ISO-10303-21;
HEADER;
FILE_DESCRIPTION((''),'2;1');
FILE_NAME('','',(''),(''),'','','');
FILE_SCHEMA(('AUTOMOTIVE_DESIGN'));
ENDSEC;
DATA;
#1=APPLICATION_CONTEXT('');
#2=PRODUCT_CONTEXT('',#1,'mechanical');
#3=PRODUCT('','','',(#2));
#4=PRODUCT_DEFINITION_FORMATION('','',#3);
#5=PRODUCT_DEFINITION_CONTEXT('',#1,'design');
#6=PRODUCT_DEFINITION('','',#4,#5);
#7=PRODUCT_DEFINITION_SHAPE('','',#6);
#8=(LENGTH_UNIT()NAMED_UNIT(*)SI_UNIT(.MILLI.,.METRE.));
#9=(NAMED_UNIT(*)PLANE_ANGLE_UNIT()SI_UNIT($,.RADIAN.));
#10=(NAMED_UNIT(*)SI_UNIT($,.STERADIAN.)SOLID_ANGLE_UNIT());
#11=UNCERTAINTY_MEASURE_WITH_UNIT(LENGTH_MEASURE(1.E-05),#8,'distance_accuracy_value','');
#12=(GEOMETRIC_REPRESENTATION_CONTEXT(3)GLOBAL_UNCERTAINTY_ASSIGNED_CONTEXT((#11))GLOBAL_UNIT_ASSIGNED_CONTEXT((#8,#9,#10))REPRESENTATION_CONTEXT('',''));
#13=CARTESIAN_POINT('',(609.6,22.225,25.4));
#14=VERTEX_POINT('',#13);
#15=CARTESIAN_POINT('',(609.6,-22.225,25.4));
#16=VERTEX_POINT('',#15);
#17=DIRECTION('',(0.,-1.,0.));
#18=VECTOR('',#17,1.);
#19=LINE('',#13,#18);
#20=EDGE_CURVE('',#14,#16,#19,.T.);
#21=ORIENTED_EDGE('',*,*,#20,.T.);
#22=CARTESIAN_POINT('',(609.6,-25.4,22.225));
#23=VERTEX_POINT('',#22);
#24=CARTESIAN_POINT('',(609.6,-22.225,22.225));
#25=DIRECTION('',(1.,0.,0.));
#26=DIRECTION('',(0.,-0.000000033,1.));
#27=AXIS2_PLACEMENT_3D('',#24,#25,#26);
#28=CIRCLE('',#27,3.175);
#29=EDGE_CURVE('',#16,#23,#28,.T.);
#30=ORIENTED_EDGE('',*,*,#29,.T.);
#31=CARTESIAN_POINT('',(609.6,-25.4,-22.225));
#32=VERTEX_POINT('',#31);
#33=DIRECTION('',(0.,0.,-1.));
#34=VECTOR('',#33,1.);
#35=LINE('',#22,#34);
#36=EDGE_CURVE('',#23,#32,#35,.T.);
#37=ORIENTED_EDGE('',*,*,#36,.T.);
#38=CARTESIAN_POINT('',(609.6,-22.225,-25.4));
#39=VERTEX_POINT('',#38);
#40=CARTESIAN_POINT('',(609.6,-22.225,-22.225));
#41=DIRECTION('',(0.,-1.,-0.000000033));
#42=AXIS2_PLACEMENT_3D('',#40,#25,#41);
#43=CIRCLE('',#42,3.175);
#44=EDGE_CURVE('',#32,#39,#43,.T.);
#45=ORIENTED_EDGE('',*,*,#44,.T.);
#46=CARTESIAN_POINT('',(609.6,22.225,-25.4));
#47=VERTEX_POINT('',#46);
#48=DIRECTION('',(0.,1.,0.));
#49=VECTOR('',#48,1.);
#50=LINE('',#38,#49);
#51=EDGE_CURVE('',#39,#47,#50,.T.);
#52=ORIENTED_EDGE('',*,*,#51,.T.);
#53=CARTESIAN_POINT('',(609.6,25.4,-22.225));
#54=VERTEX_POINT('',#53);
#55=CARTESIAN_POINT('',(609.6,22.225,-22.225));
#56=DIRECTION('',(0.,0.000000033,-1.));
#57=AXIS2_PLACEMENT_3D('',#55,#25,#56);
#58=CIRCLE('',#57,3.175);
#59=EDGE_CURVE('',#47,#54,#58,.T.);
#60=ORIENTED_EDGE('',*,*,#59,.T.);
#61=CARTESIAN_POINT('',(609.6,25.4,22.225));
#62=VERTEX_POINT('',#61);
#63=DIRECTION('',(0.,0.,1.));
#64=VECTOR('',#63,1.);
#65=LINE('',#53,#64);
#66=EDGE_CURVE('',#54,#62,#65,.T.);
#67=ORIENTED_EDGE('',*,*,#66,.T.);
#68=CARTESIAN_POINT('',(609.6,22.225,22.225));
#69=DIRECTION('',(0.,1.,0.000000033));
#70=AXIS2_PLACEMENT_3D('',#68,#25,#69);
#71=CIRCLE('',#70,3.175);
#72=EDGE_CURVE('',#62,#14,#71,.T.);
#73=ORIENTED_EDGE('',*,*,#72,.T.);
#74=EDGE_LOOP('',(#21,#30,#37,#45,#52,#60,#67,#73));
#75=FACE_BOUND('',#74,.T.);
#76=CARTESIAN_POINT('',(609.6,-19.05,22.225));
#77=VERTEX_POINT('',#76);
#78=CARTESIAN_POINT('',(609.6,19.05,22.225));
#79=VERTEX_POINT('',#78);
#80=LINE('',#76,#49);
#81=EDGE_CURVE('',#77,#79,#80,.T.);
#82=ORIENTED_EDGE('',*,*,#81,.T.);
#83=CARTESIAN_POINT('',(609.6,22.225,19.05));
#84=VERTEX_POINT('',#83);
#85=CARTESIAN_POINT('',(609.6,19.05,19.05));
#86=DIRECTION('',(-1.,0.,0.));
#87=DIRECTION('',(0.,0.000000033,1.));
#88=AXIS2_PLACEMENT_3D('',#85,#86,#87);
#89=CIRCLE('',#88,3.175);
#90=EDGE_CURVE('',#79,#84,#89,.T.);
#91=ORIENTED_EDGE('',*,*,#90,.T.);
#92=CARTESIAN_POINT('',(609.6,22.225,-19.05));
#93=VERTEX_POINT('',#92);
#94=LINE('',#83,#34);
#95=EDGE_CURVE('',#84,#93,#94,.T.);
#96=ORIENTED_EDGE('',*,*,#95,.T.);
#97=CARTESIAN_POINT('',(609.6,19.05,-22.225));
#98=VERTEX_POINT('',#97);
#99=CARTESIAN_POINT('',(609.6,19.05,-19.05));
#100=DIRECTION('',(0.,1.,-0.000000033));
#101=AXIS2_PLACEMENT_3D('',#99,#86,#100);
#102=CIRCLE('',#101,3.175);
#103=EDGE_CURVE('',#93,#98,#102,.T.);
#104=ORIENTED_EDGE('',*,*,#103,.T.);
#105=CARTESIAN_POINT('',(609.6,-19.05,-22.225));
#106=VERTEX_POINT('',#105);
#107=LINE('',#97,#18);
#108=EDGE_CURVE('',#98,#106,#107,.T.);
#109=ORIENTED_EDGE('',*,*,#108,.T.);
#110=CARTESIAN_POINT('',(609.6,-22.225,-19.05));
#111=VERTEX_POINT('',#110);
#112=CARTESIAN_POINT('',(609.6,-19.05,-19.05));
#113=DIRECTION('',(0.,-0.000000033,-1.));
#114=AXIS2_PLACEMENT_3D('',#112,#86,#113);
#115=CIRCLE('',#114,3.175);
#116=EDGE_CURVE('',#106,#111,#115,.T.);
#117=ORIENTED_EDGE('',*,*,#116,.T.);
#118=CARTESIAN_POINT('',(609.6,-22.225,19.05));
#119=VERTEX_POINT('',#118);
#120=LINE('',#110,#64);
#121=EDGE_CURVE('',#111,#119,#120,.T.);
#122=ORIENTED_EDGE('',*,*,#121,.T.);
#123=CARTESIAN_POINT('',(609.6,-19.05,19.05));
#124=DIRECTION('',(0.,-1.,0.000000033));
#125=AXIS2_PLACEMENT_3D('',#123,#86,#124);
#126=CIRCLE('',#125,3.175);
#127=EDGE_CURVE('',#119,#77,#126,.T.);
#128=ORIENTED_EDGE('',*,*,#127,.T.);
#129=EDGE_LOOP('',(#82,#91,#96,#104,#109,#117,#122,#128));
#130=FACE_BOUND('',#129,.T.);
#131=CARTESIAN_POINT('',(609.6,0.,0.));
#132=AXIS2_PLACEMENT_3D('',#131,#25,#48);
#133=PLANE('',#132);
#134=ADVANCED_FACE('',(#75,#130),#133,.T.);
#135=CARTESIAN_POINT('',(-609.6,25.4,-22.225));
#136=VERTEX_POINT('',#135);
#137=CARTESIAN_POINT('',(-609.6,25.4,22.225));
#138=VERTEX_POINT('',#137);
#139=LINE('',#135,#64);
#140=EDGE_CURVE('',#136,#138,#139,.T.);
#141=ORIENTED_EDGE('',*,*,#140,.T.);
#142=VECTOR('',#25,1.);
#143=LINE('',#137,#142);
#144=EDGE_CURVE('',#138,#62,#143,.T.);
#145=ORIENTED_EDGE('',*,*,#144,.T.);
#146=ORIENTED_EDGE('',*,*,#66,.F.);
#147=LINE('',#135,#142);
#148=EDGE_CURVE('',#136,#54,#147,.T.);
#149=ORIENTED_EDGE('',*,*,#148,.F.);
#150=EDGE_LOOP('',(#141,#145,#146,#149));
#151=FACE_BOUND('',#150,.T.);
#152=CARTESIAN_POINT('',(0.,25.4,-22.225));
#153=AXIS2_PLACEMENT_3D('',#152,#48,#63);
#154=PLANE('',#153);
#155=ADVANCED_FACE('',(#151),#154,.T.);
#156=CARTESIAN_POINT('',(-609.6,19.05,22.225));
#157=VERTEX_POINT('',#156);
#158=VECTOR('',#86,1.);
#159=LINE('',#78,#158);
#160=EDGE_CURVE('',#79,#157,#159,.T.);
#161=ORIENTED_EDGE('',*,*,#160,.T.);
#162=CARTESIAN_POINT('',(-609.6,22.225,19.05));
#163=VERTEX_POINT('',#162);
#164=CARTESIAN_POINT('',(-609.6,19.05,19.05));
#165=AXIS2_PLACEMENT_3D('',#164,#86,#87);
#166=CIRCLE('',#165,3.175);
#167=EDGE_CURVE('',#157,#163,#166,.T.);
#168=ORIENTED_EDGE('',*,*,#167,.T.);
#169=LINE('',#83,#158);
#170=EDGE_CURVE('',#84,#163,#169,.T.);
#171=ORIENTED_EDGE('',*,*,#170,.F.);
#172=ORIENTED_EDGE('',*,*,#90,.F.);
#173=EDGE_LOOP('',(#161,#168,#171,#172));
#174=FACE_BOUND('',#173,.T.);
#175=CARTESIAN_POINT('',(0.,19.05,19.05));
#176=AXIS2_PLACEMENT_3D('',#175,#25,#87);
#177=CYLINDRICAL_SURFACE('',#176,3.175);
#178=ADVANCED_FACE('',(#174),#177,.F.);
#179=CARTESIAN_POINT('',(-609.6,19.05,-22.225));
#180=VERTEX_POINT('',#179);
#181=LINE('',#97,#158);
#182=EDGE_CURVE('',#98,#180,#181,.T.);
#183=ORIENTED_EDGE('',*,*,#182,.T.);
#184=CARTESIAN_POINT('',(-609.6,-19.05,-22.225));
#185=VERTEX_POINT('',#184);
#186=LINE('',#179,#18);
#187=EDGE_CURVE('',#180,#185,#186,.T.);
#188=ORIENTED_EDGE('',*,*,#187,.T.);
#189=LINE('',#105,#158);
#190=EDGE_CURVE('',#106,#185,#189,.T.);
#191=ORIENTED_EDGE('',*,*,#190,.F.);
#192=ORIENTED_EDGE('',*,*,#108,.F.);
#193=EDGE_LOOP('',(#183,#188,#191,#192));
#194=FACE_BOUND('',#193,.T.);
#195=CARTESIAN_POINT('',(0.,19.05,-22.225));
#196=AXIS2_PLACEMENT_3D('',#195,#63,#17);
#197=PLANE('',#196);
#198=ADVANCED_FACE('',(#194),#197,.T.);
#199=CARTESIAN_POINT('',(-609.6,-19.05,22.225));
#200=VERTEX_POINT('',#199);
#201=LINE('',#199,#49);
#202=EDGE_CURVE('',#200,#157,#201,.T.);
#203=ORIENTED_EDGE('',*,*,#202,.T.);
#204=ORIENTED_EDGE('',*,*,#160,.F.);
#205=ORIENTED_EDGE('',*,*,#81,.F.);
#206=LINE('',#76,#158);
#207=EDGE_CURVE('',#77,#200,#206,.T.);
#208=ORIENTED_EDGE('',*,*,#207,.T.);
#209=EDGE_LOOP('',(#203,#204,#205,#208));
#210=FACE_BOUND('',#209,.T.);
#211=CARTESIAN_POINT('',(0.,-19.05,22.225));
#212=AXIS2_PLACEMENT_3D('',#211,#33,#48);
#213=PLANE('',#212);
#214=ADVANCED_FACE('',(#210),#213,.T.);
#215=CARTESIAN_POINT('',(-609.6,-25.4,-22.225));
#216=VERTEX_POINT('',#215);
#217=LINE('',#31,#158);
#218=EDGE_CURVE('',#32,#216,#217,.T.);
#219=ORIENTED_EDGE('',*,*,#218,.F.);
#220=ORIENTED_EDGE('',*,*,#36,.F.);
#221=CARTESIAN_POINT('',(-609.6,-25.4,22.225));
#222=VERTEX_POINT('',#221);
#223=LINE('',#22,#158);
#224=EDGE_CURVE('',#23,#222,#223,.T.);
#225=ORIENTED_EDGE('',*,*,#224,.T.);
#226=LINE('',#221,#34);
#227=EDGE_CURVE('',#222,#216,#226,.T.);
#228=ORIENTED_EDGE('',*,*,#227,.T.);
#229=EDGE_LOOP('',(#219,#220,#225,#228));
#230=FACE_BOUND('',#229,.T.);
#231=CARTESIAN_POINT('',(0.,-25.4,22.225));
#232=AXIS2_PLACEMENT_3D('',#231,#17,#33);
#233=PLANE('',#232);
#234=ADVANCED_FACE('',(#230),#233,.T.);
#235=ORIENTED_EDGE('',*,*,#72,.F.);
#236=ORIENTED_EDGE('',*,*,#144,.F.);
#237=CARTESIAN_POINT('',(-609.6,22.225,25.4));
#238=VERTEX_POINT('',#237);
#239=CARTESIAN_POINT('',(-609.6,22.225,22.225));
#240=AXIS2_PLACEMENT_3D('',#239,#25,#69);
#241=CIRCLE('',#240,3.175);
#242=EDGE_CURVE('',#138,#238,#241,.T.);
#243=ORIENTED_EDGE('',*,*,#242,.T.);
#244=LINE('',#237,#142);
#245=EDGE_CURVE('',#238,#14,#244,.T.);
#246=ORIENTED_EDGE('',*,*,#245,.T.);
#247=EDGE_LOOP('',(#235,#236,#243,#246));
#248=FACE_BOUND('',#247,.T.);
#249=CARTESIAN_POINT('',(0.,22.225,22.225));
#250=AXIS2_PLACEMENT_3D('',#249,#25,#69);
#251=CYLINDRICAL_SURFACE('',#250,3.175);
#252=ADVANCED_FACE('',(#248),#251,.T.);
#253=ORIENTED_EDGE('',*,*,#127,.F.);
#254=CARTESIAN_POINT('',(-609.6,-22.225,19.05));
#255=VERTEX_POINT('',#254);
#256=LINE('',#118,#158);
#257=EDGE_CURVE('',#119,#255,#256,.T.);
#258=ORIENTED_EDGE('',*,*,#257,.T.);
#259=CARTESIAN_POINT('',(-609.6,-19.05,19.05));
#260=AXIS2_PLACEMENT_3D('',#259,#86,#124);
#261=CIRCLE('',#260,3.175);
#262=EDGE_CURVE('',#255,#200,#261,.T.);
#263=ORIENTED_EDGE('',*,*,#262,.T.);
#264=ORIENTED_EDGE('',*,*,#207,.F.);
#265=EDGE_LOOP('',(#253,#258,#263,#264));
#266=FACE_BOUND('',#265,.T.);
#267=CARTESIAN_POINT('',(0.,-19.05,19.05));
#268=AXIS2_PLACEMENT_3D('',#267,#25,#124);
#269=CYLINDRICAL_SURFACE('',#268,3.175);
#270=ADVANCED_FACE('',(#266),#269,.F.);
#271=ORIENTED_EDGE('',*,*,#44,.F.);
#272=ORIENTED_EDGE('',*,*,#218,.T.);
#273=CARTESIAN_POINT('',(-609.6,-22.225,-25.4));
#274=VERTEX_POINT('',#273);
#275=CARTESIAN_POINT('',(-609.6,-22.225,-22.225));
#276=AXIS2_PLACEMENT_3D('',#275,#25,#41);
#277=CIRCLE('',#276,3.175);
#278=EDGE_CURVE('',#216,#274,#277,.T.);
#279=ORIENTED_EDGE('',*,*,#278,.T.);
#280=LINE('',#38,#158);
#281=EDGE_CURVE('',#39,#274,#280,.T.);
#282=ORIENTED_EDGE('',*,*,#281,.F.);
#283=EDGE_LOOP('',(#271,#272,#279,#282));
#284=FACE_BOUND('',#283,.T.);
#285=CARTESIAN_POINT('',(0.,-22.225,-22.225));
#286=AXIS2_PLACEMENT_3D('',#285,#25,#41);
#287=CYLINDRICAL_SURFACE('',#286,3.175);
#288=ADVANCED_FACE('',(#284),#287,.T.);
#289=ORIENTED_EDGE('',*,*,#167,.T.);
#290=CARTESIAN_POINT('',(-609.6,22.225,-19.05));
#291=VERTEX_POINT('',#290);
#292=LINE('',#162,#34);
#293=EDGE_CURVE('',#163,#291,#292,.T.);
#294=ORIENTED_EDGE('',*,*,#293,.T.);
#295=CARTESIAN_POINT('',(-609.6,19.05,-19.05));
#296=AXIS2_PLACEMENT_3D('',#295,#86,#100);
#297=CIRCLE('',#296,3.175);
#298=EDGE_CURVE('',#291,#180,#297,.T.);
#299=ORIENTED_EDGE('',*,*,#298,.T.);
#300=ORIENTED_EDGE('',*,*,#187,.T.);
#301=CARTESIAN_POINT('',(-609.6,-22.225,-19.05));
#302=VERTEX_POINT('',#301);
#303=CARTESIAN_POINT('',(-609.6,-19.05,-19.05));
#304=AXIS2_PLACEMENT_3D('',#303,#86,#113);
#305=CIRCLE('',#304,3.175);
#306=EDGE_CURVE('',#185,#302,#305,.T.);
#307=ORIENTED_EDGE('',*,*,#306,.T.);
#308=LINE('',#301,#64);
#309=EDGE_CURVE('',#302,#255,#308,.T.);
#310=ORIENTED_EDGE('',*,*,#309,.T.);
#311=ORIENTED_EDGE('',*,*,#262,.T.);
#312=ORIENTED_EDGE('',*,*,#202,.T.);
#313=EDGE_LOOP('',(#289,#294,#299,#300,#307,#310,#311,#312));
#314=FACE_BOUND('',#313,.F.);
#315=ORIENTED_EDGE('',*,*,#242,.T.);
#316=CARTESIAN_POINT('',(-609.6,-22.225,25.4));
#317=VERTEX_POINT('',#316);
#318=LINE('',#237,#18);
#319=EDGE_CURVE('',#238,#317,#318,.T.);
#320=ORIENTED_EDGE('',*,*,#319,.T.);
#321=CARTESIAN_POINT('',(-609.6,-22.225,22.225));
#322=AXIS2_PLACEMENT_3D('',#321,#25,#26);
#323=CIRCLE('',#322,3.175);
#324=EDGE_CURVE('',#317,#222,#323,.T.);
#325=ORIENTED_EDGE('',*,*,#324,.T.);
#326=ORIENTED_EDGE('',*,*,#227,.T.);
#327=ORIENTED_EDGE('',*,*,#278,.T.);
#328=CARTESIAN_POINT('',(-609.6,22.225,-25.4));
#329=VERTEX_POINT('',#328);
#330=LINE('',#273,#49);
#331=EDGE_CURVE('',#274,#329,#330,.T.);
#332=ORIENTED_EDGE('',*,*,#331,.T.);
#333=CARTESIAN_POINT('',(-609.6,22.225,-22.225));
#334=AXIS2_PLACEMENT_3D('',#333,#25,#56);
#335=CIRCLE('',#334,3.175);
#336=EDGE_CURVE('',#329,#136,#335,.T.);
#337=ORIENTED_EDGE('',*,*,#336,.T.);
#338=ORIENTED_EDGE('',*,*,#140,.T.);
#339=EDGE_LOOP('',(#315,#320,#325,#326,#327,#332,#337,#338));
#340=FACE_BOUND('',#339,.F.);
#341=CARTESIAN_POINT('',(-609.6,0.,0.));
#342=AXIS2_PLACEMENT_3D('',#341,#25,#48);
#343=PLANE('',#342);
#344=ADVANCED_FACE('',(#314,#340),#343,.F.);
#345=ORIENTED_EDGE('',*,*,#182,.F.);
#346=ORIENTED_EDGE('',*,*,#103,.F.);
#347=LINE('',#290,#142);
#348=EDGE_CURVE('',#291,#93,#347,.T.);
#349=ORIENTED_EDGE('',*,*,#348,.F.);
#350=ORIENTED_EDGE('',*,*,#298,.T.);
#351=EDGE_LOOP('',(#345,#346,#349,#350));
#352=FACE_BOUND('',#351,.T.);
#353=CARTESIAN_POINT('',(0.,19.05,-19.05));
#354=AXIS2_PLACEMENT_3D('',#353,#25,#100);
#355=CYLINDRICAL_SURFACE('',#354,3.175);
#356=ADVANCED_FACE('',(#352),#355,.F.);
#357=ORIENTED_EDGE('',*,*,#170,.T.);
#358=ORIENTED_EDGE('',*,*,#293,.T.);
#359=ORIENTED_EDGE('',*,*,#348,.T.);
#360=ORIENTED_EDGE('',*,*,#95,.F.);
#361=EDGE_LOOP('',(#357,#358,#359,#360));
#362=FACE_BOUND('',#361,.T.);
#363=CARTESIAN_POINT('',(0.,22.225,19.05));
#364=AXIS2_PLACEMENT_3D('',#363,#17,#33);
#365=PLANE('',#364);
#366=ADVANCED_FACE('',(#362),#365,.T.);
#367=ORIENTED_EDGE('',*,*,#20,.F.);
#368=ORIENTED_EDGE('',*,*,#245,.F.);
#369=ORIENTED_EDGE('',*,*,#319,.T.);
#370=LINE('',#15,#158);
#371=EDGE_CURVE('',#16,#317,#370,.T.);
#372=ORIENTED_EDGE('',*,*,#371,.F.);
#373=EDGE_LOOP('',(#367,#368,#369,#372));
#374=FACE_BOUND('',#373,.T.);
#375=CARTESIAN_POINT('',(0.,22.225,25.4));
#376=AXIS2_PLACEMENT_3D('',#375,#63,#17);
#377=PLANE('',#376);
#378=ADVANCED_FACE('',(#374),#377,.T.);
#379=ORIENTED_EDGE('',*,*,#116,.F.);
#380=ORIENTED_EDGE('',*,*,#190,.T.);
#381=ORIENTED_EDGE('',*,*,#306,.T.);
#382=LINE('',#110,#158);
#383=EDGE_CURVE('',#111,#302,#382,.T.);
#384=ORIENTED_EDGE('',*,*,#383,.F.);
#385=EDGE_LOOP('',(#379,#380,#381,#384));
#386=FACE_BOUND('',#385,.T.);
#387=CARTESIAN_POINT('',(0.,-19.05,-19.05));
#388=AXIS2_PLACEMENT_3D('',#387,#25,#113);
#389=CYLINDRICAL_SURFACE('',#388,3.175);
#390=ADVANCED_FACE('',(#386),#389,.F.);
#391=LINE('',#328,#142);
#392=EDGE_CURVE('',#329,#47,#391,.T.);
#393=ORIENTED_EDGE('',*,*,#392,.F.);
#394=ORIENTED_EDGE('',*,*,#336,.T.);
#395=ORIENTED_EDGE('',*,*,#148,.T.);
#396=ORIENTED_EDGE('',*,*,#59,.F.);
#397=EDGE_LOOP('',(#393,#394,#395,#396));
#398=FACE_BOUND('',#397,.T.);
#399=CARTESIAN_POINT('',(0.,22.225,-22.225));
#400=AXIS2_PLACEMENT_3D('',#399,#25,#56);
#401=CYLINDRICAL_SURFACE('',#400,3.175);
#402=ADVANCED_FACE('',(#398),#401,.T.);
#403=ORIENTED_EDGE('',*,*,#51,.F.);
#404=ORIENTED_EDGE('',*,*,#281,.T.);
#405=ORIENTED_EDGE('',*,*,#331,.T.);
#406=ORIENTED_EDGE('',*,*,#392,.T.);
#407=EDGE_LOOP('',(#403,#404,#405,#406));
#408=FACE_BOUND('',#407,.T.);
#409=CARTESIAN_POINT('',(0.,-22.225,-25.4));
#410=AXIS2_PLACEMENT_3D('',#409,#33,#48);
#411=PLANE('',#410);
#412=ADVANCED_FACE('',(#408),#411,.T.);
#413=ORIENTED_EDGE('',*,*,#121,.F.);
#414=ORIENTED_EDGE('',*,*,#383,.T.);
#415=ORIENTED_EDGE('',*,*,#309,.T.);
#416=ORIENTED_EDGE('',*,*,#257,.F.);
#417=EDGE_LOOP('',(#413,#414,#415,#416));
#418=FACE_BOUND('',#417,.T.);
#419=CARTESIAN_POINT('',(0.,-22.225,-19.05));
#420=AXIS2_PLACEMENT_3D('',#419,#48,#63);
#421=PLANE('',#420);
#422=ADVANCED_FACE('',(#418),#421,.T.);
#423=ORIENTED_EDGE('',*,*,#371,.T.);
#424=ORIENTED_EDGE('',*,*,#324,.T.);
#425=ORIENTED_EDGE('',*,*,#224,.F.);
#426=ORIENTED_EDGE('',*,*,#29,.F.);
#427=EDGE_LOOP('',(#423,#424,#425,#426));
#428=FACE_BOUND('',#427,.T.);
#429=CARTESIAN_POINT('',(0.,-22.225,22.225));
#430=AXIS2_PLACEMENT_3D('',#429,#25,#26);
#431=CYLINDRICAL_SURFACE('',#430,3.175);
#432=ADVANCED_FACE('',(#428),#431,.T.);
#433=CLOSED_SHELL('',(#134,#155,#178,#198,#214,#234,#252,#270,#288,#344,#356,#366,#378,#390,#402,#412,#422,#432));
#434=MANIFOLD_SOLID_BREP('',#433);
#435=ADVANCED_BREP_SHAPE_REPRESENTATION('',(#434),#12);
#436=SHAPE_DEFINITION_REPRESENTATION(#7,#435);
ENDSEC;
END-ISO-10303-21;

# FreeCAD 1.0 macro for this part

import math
import FreeCAD as App
import Part
import Sketcher
Q = App.Units.Quantity

doc = App.newDocument("Part")
body = doc.addObject("PartDesign::Body", "Body")

# Sketch on YZ plane
sketch1 = body.newObject("Sketcher::SketchObject", "Sketch")
sketch1.AttachmentSupport = (doc.getObject("YZ_Plane"), [""])
sketch1.MapMode = "FlatFace"
sketch1.addGeometry([
    Part.LineSegment(App.Vector(-22.2, -25.4, 0), App.Vector(22.2, -25.4, 0)),  # 0
    Part.ArcOfCircle(Part.Circle(App.Vector(22.2, -22.2, 0), App.Vector(0, 0, 1), 3.2), math.radians(-90), math.radians(0)),  # 1
    Part.LineSegment(App.Vector(25.4, -22.2, 0), App.Vector(25.4, 22.2, 0)),  # 2
    Part.ArcOfCircle(Part.Circle(App.Vector(22.2, 22.2, 0), App.Vector(0, 0, 1), 3.2), math.radians(0), math.radians(90)),  # 3
    Part.LineSegment(App.Vector(22.2, 25.4, 0), App.Vector(-22.2, 25.4, 0)),  # 4
    Part.ArcOfCircle(Part.Circle(App.Vector(-22.2, 22.2, 0), App.Vector(0, 0, 1), 3.2), math.radians(90), math.radians(180)),  # 5
    Part.LineSegment(App.Vector(-25.4, 22.2, 0), App.Vector(-25.4, -22.2, 0)),  # 6
    Part.ArcOfCircle(Part.Circle(App.Vector(-22.2, -22.2, 0), App.Vector(0, 0, 1), 3.2), math.radians(-180), math.radians(-90)),  # 7
    Part.LineSegment(App.Vector(22.2, 19.1, 0), App.Vector(22.2, -19.1, 0)),  # 8
    Part.ArcOfCircle(Part.Circle(App.Vector(19, -19, 0), App.Vector(0, 0, 1), 3.2), math.radians(-90), math.radians(0)),  # 9
    Part.LineSegment(App.Vector(19.1, -22.2, 0), App.Vector(-19.1, -22.2, 0)),  # 10
    Part.ArcOfCircle(Part.Circle(App.Vector(-19, -19, 0), App.Vector(0, 0, 1), 3.2), math.radians(-180), math.radians(-90)),  # 11
    Part.LineSegment(App.Vector(-22.2, -19.1, 0), App.Vector(-22.2, 19.1, 0)),  # 12
    Part.ArcOfCircle(Part.Circle(App.Vector(-19, 19, 0), App.Vector(0, 0, 1), 3.2), math.radians(90), math.radians(180)),  # 13
    Part.LineSegment(App.Vector(-19.1, 22.2, 0), App.Vector(19.1, 22.2, 0)),  # 14
    Part.ArcOfCircle(Part.Circle(App.Vector(19, 19, 0), App.Vector(0, 0, 1), 3.2), math.radians(0), math.radians(90)),  # 15
], False)
sketch1.addConstraint([
    Sketcher.Constraint("Tangent", 0, 2, 1, 1),
    Sketcher.Constraint("Tangent", 1, 2, 2, 1),
    Sketcher.Constraint("Tangent", 2, 2, 3, 1),
    Sketcher.Constraint("Tangent", 3, 2, 4, 1),
    Sketcher.Constraint("Tangent", 4, 2, 5, 1),
    Sketcher.Constraint("Tangent", 5, 2, 6, 1),
    Sketcher.Constraint("Tangent", 6, 2, 7, 1),
    Sketcher.Constraint("Tangent", 7, 2, 0, 1),
    Sketcher.Constraint("Tangent", 8, 2, 9, 2),
    Sketcher.Constraint("Tangent", 9, 1, 10, 1),
    Sketcher.Constraint("Tangent", 10, 2, 11, 2),
    Sketcher.Constraint("Tangent", 11, 1, 12, 1),
    Sketcher.Constraint("Tangent", 12, 2, 13, 2),
    Sketcher.Constraint("Tangent", 13, 1, 14, 1),
    Sketcher.Constraint("Tangent", 14, 2, 15, 2),
    Sketcher.Constraint("Tangent", 15, 1, 8, 1),
    Sketcher.Constraint("Horizontal", 0),
    Sketcher.Constraint("Vertical", 2),
    Sketcher.Constraint("Horizontal", 4),
    Sketcher.Constraint("Vertical", 6),
    Sketcher.Constraint("Vertical", 8),
    Sketcher.Constraint("Horizontal", 10),
    Sketcher.Constraint("Vertical", 12),
    Sketcher.Constraint("Horizontal", 14),
    Sketcher.Constraint("Equal", 1, 3),
    Sketcher.Constraint("Equal", 3, 5),
    Sketcher.Constraint("Equal", 5, 7),
    Sketcher.Constraint("Equal", 7, 9),
    Sketcher.Constraint("Equal", 9, 11),
    Sketcher.Constraint("Equal", 11, 13),
    Sketcher.Constraint("Equal", 13, 15),
    Sketcher.Constraint("Symmetric", 1, 3, 5, 3, -1, 1),
    Sketcher.Constraint("Symmetric", 9, 3, 13, 3, -1, 1),
    Sketcher.Constraint("Horizontal", 6, 2, 9, 1),
    Sketcher.Constraint("Vertical", 3, 2, 8, 2),
    Sketcher.Constraint("Equal", 4, 2),
    Sketcher.Constraint("DistanceX", 10, 2, 10, 1, Q("1.5 in")),
    Sketcher.Constraint("DistanceY", 0, 2, -1, 1, Q("1 in")),
])
pad1 = body.newObject("PartDesign::Pad", "Pad")
pad1.Profile = sketch1
pad1.Length = Q("48 in")
pad1.Midplane = True

doc.recompute()
